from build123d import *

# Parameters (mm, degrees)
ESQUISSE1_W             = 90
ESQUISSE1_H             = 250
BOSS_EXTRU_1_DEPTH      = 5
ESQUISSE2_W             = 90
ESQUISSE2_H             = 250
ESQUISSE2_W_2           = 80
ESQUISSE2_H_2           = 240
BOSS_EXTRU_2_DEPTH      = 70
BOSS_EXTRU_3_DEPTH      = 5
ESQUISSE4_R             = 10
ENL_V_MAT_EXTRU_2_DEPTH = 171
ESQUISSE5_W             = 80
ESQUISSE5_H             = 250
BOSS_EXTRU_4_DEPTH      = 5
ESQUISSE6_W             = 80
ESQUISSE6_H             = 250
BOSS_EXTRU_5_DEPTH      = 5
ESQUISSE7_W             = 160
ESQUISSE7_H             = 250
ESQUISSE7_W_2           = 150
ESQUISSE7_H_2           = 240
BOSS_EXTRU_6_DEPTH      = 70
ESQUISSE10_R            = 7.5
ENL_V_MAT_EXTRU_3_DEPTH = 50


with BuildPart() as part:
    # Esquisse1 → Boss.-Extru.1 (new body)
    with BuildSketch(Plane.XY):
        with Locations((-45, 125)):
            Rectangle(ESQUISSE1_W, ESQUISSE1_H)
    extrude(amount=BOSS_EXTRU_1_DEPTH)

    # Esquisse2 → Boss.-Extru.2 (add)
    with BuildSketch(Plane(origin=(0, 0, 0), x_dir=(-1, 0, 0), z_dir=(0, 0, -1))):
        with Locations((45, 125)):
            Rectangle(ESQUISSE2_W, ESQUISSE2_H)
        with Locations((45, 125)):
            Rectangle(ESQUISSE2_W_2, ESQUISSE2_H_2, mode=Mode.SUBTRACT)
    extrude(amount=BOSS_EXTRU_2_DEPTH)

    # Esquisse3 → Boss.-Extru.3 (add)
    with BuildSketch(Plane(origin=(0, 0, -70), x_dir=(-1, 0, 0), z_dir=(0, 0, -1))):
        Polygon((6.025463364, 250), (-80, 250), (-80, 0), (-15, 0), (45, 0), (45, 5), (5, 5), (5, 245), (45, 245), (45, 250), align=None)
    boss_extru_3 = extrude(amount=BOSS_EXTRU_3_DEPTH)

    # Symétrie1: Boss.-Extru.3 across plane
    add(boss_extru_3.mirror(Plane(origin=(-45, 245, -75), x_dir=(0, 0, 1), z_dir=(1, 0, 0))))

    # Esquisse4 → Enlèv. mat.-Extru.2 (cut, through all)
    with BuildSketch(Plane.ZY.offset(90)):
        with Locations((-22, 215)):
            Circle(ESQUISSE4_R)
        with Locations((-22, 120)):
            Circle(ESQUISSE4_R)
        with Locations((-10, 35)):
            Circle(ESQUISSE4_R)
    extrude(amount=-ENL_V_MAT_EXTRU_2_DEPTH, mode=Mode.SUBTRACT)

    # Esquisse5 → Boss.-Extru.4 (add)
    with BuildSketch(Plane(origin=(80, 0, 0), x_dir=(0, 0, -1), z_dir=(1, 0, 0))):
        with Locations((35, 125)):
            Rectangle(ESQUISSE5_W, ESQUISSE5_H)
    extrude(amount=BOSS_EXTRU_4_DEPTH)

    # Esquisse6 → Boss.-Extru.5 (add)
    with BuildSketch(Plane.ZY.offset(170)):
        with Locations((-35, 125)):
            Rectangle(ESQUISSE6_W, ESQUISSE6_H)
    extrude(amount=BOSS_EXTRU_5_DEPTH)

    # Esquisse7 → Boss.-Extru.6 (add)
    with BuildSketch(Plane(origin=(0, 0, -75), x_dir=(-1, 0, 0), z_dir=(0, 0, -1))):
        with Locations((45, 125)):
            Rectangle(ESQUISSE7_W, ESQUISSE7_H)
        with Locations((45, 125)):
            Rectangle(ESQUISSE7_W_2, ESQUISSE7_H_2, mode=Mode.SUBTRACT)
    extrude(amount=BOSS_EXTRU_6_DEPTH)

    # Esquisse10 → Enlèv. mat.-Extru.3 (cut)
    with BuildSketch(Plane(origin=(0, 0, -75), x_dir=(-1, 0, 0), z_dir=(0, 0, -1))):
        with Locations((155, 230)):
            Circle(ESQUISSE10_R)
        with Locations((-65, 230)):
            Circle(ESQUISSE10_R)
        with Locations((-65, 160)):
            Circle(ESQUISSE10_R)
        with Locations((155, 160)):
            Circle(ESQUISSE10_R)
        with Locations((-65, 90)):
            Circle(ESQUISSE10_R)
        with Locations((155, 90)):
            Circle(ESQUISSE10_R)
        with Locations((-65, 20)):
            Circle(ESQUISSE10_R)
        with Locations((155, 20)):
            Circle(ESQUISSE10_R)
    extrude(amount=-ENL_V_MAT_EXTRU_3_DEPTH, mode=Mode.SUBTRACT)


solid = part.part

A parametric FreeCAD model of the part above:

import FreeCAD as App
import Part
import Sketcher
from FreeCAD import Vector
Q = App.Units.Quantity

doc = App.newDocument("Part")
params = doc.addObject("Spreadsheet::Sheet", "Params")
for row, (alias, value) in enumerate([
    ("sketch1_width", "90 mm"),
    ("sketch1_height", "250 mm"),
    ("pad1_length", "5 mm"),
    ("sketch2_width", "90 mm"),
    ("sketch2_width2", "80 mm"),
    ("sketch2_height", "250 mm"),
    ("sketch2_height2", "240 mm"),
    ("pad2_length", "70 mm"),
    ("sketch3_width", "125 mm"),
    ("sketch3_width2", "40 mm"),
    ("sketch3_height", "250 mm"),
    ("sketch3_height2", "5 mm"),
    ("pad3_length", "5 mm"),
    ("sketch4_diameter", "20 mm"),
    ("sketch5_width", "250 mm"),
    ("sketch5_height", "80 mm"),
    ("pad4_length", "5 mm"),
    ("sketch6_width", "250 mm"),
    ("sketch6_height", "80 mm"),
    ("pad5_length", "5 mm"),
    ("sketch7_width", "160 mm"),
    ("sketch7_width2", "150 mm"),
    ("sketch7_height", "250 mm"),
    ("sketch7_height2", "240 mm"),
    ("pad6_length", "70 mm"),
    ("sketch8_diameter", "15 mm"),
    ("pocket2_length", "50 mm"),
], start=1):
    params.set(f"A{row}", alias)
    params.set(f"B{row}", "=" + value)
    params.setAlias(f"B{row}", alias)

body = doc.addObject("PartDesign::Body", "Body")

sketch1 = body.newObject("Sketcher::SketchObject", "Sketch")
sketch1.AttachmentSupport = (doc.getObject("XY_Plane"), [""])
sketch1.MapMode = "FlatFace"
sketch1.addGeometry([
    Part.LineSegment(Vector(-90, 250, 0), Vector(-90, 0, 0)),
    Part.LineSegment(Vector(-90, 0, 0), Vector(0, 0, 0)),
    Part.LineSegment(Vector(0, 0, 0), Vector(0, 250, 0)),
    Part.LineSegment(Vector(0, 250, 0), Vector(-90, 250, 0)),
], False)
sketch1.addConstraint([
    Sketcher.Constraint("Coincident", 0, 2, 1, 1),
    Sketcher.Constraint("Coincident", 1, 2, 2, 1),
    Sketcher.Constraint("Coincident", 2, 2, 3, 1),
    Sketcher.Constraint("Coincident", 3, 2, 0, 1),
    Sketcher.Constraint("Vertical", 0),
    Sketcher.Constraint("Horizontal", 1),
    Sketcher.Constraint("Vertical", 2),
    Sketcher.Constraint("Horizontal", 3),
    Sketcher.Constraint("Coincident", 1, 2, -1, 1),
    Sketcher.Constraint("DistanceX", 1, 1, 1, 2, Q("90 mm")),
    Sketcher.Constraint("DistanceY", 0, 2, 0, 1, Q("250 mm")),
])
sketch1.setExpression("Constraints[9]", "Params.sketch1_width")
sketch1.setExpression("Constraints[10]", "Params.sketch1_height")
pad1 = body.newObject("PartDesign::Pad", "Pad")
pad1.Profile = sketch1
pad1.setExpression("Length", "Params.pad1_length")

sketch2 = body.newObject("Sketcher::SketchObject", "Sketch001")
sketch2.AttachmentSupport = (doc.getObject("XY_Plane"), [""])
sketch2.MapMode = "FlatFace"
sketch2.addGeometry([
    Part.LineSegment(Vector(0, 250, 0), Vector(0, 0, 0)),
    Part.LineSegment(Vector(0, 0, 0), Vector(-90, 0, 0)),
    Part.LineSegment(Vector(-90, 0, 0), Vector(-90, 250, 0)),
    Part.LineSegment(Vector(-90, 250, 0), Vector(0, 250, 0)),
    Part.LineSegment(Vector(-85, 5, 0), Vector(-5, 5, 0)),
    Part.LineSegment(Vector(-5, 5, 0), Vector(-5, 245, 0)),
    Part.LineSegment(Vector(-5, 245, 0), Vector(-85, 245, 0)),
    Part.LineSegment(Vector(-85, 245, 0), Vector(-85, 5, 0)),
], False)
sketch2.addConstraint([
    Sketcher.Constraint("Coincident", 0, 2, 1, 1),
    Sketcher.Constraint("Coincident", 1, 2, 2, 1),
    Sketcher.Constraint("Coincident", 2, 2, 3, 1),
    Sketcher.Constraint("Coincident", 3, 2, 0, 1),
    Sketcher.Constraint("Coincident", 4, 2, 5, 1),
    Sketcher.Constraint("Coincident", 5, 2, 6, 1),
    Sketcher.Constraint("Coincident", 6, 2, 7, 1),
    Sketcher.Constraint("Coincident", 7, 2, 4, 1),
    Sketcher.Constraint("Vertical", 0),
    Sketcher.Constraint("Horizontal", 1),
    Sketcher.Constraint("Vertical", 2),
    Sketcher.Constraint("Horizontal", 3),
    Sketcher.Constraint("Horizontal", 4),
    Sketcher.Constraint("Vertical", 5),
    Sketcher.Constraint("Horizontal", 6),
    Sketcher.Constraint("Vertical", 7),
    Sketcher.Constraint("Coincident", 0, 2, -1, 1),
    Sketcher.Constraint("DistanceX", 1, 2, 1, 1, Q("90 mm")),
    Sketcher.Constraint("DistanceX", 4, 1, 4, 2, Q("80 mm")),
    Sketcher.Constraint("DistanceY", 0, 2, 0, 1, Q("250 mm")),
    Sketcher.Constraint("DistanceY", 5, 1, 5, 2, Q("240 mm")),
    Sketcher.Constraint("DistanceX", 4, 2, -1, 1, Q("5 mm")),
    Sketcher.Constraint("DistanceY", -1, 1, 4, 2, Q("5 mm")),
])
sketch2.setExpression("Constraints[17]", "Params.sketch2_width")
sketch2.setExpression("Constraints[18]", "Params.sketch2_width2")
sketch2.setExpression("Constraints[19]", "Params.sketch2_height")
sketch2.setExpression("Constraints[20]", "Params.sketch2_height2")
pad2 = body.newObject("PartDesign::Pad", "Pad001")
pad2.Profile = sketch2
pad2.setExpression("Length", "Params.pad2_length")
pad2.Reversed = True

sketch3 = body.newObject("Sketcher::SketchObject", "Sketch002")
sketch3.AttachmentSupport = (doc.getObject("XY_Plane"), [""])
sketch3.MapMode = "FlatFace"
sketch3.AttachmentOffset = App.Placement(Vector(0, 0, -70), App.Rotation())
sketch3.addGeometry([
    Part.LineSegment(Vector(80, 250, 0), Vector(80, 0, 0)),
    Part.LineSegment(Vector(80, 0, 0), Vector(-45, 0, 0)),
    Part.LineSegment(Vector(-45, 0, 0), Vector(-45, 5, 0)),
    Part.LineSegment(Vector(-45, 5, 0), Vector(-5, 5, 0)),
    Part.LineSegment(Vector(-5, 5, 0), Vector(-5, 245, 0)),
    Part.LineSegment(Vector(-5, 245, 0), Vector(-45, 245, 0)),
    Part.LineSegment(Vector(-45, 245, 0), Vector(-45, 250, 0)),
    Part.LineSegment(Vector(-45, 250, 0), Vector(80, 250, 0)),
], False)
sketch3.addConstraint([
    Sketcher.Constraint("Coincident", 0, 2, 1, 1),
    Sketcher.Constraint("Coincident", 1, 2, 2, 1),
    Sketcher.Constraint("Coincident", 2, 2, 3, 1),
    Sketcher.Constraint("Coincident", 3, 2, 4, 1),
    Sketcher.Constraint("Coincident", 4, 2, 5, 1),
    Sketcher.Constraint("Coincident", 5, 2, 6, 1),
    Sketcher.Constraint("Coincident", 6, 2, 7, 1),
    Sketcher.Constraint("Coincident", 7, 2, 0, 1),
    Sketcher.Constraint("Vertical", 0),
    Sketcher.Constraint("Horizontal", 1),
    Sketcher.Constraint("Vertical", 2),
    Sketcher.Constraint("Horizontal", 3),
    Sketcher.Constraint("Vertical", 4),
    Sketcher.Constraint("Horizontal", 5),
    Sketcher.Constraint("Vertical", 6),
    Sketcher.Constraint("Horizontal", 7),
    Sketcher.Constraint("PointOnObject", 0, 2, -1),
    Sketcher.Constraint("Vertical", 2, 2, 5, 2),
    Sketcher.Constraint("Equal", 2, 6),
    Sketcher.Constraint("DistanceX", 1, 2, 1, 1, Q("125 mm")),
    Sketcher.Constraint("DistanceX", 3, 1, 3, 2, Q("40 mm")),
    Sketcher.Constraint("DistanceY", 0, 2, 0, 1, Q("250 mm")),
    Sketcher.Constraint("DistanceY", 2, 1, 2, 2, Q("5 mm")),
    Sketcher.Constraint("DistanceX", -1, 1, 0, 2, Q("80 mm")),
])
sketch3.setExpression("Constraints[19]", "Params.sketch3_width")
sketch3.setExpression("Constraints[20]", "Params.sketch3_width2")
sketch3.setExpression("Constraints[21]", "Params.sketch3_height")
sketch3.setExpression("Constraints[22]", "Params.sketch3_height2")
pad3 = body.newObject("PartDesign::Pad", "Pad002")
pad3.Profile = sketch3
pad3.setExpression("Length", "Params.pad3_length")
pad3.Reversed = True
doc.recompute()

datumplane = body.newObject("PartDesign::Plane", "DatumPlane")
datumplane.AttachmentSupport = (doc.getObject("YZ_Plane"), [""])
datumplane.MapMode = "FlatFace"
datumplane.AttachmentOffset = App.Placement(Vector(0, 0, -45), App.Rotation())
mirrored = body.newObject("PartDesign::Mirrored", "Mirrored")
mirrored.Originals = [pad3]
mirrored.MirrorPlane = (datumplane, [""])
body.Tip = mirrored

sketch4 = body.newObject("Sketcher::SketchObject", "Sketch003")
sketch4.AttachmentSupport = (doc.getObject("YZ_Plane"), [""])
sketch4.MapMode = "FlatFace"
sketch4.AttachmentOffset = App.Placement(Vector(0, 0, -90), App.Rotation())
sketch4.addGeometry([
    Part.Circle(Vector(215, -22, 0), Vector(0, 0, 1), 10),
    Part.Circle(Vector(120, -22, 0), Vector(0, 0, 1), 10),
    Part.Circle(Vector(35, -10, 0), Vector(0, 0, 1), 10),
], False)
sketch4.addConstraint([
    Sketcher.Constraint("Equal", 0, 1),
    Sketcher.Constraint("Equal", 1, 2),
    Sketcher.Constraint("Horizontal", 0, 3, 1, 3),
    Sketcher.Constraint("Diameter", 0, Q("20 mm")),
    Sketcher.Constraint("DistanceX", -1, 1, 0, 3, Q("215 mm")),
    Sketcher.Constraint("DistanceY", 0, 3, -1, 1, Q("22 mm")),
    Sketcher.Constraint("DistanceX", -1, 1, 1, 3, Q("120 mm")),
    Sketcher.Constraint("DistanceX", -1, 1, 2, 3, Q("35 mm")),
    Sketcher.Constraint("DistanceY", 2, 3, -1, 1, Q("10 mm")),
])
sketch4.setExpression("Constraints[3]", "Params.sketch4_diameter")
pocket1 = body.newObject("PartDesign::Pocket", "Pocket")
pocket1.Profile = sketch4
pocket1.Type = "ThroughAll"
pocket1.Reversed = True

sketch5 = body.newObject("Sketcher::SketchObject", "Sketch004")
sketch5.AttachmentSupport = (doc.getObject("YZ_Plane"), [""])
sketch5.MapMode = "FlatFace"
sketch5.AttachmentOffset = App.Placement(Vector(0, 0, 80), App.Rotation())
sketch5.addGeometry([
    Part.LineSegment(Vector(250, 5, 0), Vector(0, 5, 0)),
    Part.LineSegment(Vector(0, 5, 0), Vector(0, -75, 0)),
    Part.LineSegment(Vector(0, -75, 0), Vector(250, -75, 0)),
    Part.LineSegment(Vector(250, -75, 0), Vector(250, 5, 0)),
], False)
sketch5.addConstraint([
    Sketcher.Constraint("Coincident", 0, 2, 1, 1),
    Sketcher.Constraint("Coincident", 1, 2, 2, 1),
    Sketcher.Constraint("Coincident", 2, 2, 3, 1),
    Sketcher.Constraint("Coincident", 3, 2, 0, 1),
    Sketcher.Constraint("Horizontal", 0),
    Sketcher.Constraint("Vertical", 1),
    Sketcher.Constraint("Horizontal", 2),
    Sketcher.Constraint("Vertical", 3),
    Sketcher.Constraint("PointOnObject", 0, 2, -2),
    Sketcher.Constraint("DistanceX", 0, 2, 0, 1, Q("250 mm")),
    Sketcher.Constraint("DistanceY", 1, 2, 1, 1, Q("80 mm")),
    Sketcher.Constraint("DistanceY", -1, 1, 0, 2, Q("5 mm")),
])
sketch5.setExpression("Constraints[9]", "Params.sketch5_width")
sketch5.setExpression("Constraints[10]", "Params.sketch5_height")
pad4 = body.newObject("PartDesign::Pad", "Pad003")
pad4.Profile = sketch5
pad4.setExpression("Length", "Params.pad4_length")

sketch6 = body.newObject("Sketcher::SketchObject", "Sketch005")
sketch6.AttachmentSupport = (doc.getObject("YZ_Plane"), [""])
sketch6.MapMode = "FlatFace"
sketch6.AttachmentOffset = App.Placement(Vector(0, 0, -170), App.Rotation())
sketch6.addGeometry([
    Part.LineSegment(Vector(250, -75, 0), Vector(0, -75, 0)),
    Part.LineSegment(Vector(0, -75, 0), Vector(0, 5, 0)),
    Part.LineSegment(Vector(0, 5, 0), Vector(250, 5, 0)),
    Part.LineSegment(Vector(250, 5, 0), Vector(250, -75, 0)),
], False)
sketch6.addConstraint([
    Sketcher.Constraint("Coincident", 0, 2, 1, 1),
    Sketcher.Constraint("Coincident", 1, 2, 2, 1),
    Sketcher.Constraint("Coincident", 2, 2, 3, 1),
    Sketcher.Constraint("Coincident", 3, 2, 0, 1),
    Sketcher.Constraint("Horizontal", 0),
    Sketcher.Constraint("Vertical", 1),
    Sketcher.Constraint("Horizontal", 2),
    Sketcher.Constraint("Vertical", 3),
    Sketcher.Constraint("PointOnObject", 0, 2, -2),
    Sketcher.Constraint("DistanceX", 0, 2, 0, 1, Q("250 mm")),
    Sketcher.Constraint("DistanceY", 1, 1, 1, 2, Q("80 mm")),
    Sketcher.Constraint("DistanceY", 0, 2, -1, 1, Q("75 mm")),
])
sketch6.setExpression("Constraints[9]", "Params.sketch6_width")
sketch6.setExpression("Constraints[10]", "Params.sketch6_height")
pad5 = body.newObject("PartDesign::Pad", "Pad004")
pad5.Profile = sketch6
pad5.setExpression("Length", "Params.pad5_length")
pad5.Reversed = True

sketch7 = body.newObject("Sketcher::SketchObject", "Sketch006")
sketch7.AttachmentSupport = (doc.getObject("XY_Plane"), [""])
sketch7.MapMode = "FlatFace"
sketch7.AttachmentOffset = App.Placement(Vector(0, 0, -75), App.Rotation())
sketch7.addGeometry([
    Part.LineSegment(Vector(35, 250, 0), Vector(35, 0, 0)),
    Part.LineSegment(Vector(35, 0, 0), Vector(-125, 0, 0)),
    Part.LineSegment(Vector(-125, 0, 0), Vector(-125, 250, 0)),
    Part.LineSegment(Vector(-125, 250, 0), Vector(35, 250, 0)),
    Part.LineSegment(Vector(-120, 5, 0), Vector(30, 5, 0)),
    Part.LineSegment(Vector(30, 5, 0), Vector(30, 245, 0)),
    Part.LineSegment(Vector(30, 245, 0), Vector(-120, 245, 0)),
    Part.LineSegment(Vector(-120, 245, 0), Vector(-120, 5, 0)),
], False)
sketch7.addConstraint([
    Sketcher.Constraint("Coincident", 0, 2, 1, 1),
    Sketcher.Constraint("Coincident", 1, 2, 2, 1),
    Sketcher.Constraint("Coincident", 2, 2, 3, 1),
    Sketcher.Constraint("Coincident", 3, 2, 0, 1),
    Sketcher.Constraint("Coincident", 4, 2, 5, 1),
    Sketcher.Constraint("Coincident", 5, 2, 6, 1),
    Sketcher.Constraint("Coincident", 6, 2, 7, 1),
    Sketcher.Constraint("Coincident", 7, 2, 4, 1),
    Sketcher.Constraint("Vertical", 0),
    Sketcher.Constraint("Horizontal", 1),
    Sketcher.Constraint("Vertical", 2),
    Sketcher.Constraint("Horizontal", 3),
    Sketcher.Constraint("Horizontal", 4),
    Sketcher.Constraint("Vertical", 5),
    Sketcher.Constraint("Horizontal", 6),
    Sketcher.Constraint("Vertical", 7),
    Sketcher.Constraint("PointOnObject", 0, 2, -1),
    Sketcher.Constraint("DistanceX", 1, 2, 1, 1, Q("160 mm")),
    Sketcher.Constraint("DistanceX", 4, 1, 4, 2, Q("150 mm")),
    Sketcher.Constraint("DistanceY", 0, 2, 0, 1, Q("250 mm")),
    Sketcher.Constraint("DistanceY", 5, 1, 5, 2, Q("240 mm")),
    Sketcher.Constraint("DistanceX", -1, 1, 0, 2, Q("35 mm")),
    Sketcher.Constraint("DistanceX", -1, 1, 4, 2, Q("30 mm")),
    Sketcher.Constraint("DistanceY", -1, 1, 4, 2, Q("5 mm")),
])
sketch7.setExpression("Constraints[17]", "Params.sketch7_width")
sketch7.setExpression("Constraints[18]", "Params.sketch7_width2")
sketch7.setExpression("Constraints[19]", "Params.sketch7_height")
sketch7.setExpression("Constraints[20]", "Params.sketch7_height2")
pad6 = body.newObject("PartDesign::Pad", "Pad005")
pad6.Profile = sketch7
pad6.setExpression("Length", "Params.pad6_length")
pad6.Reversed = True

sketch8 = body.newObject("Sketcher::SketchObject", "Sketch007")
sketch8.AttachmentSupport = (doc.getObject("XY_Plane"), [""])
sketch8.MapMode = "FlatFace"
sketch8.AttachmentOffset = App.Placement(Vector(0, 0, -75), App.Rotation())
sketch8.addGeometry([
    Part.Circle(Vector(-155, 230, 0), Vector(0, 0, 1), 8),
    Part.Circle(Vector(65, 230, 0), Vector(0, 0, 1), 8),
    Part.Circle(Vector(65, 160, 0), Vector(0, 0, 1), 8),
    Part.Circle(Vector(-155, 160, 0), Vector(0, 0, 1), 8),
    Part.Circle(Vector(65, 90, 0), Vector(0, 0, 1), 8),
    Part.Circle(Vector(-155, 90, 0), Vector(0, 0, 1), 8),
    Part.Circle(Vector(65, 20, 0), Vector(0, 0, 1), 8),
    Part.Circle(Vector(-155, 20, 0), Vector(0, 0, 1), 8),
], False)
sketch8.addConstraint([
    Sketcher.Constraint("Equal", 0, 1),
    Sketcher.Constraint("Equal", 1, 2),
    Sketcher.Constraint("Equal", 2, 3),
    Sketcher.Constraint("Equal", 3, 4),
    Sketcher.Constraint("Equal", 4, 5),
    Sketcher.Constraint("Equal", 5, 6),
    Sketcher.Constraint("Equal", 6, 7),
    Sketcher.Constraint("Horizontal", 0, 3, 1, 3),
    Sketcher.Constraint("Horizontal", 2, 3, 3, 3),
    Sketcher.Constraint("Horizontal", 4, 3, 5, 3),
    Sketcher.Constraint("Horizontal", 6, 3, 7, 3),
    Sketcher.Constraint("Vertical", 1, 3, 2, 3),
    Sketcher.Constraint("Vertical", 0, 3, 3, 3),
    Sketcher.Constraint("Vertical", 2, 3, 4, 3),
    Sketcher.Constraint("Vertical", 3, 3, 5, 3),
    Sketcher.Constraint("Vertical", 4, 3, 6, 3),
    Sketcher.Constraint("Vertical", 5, 3, 7, 3),
    Sketcher.Constraint("Diameter", 0, Q("15 mm")),
    Sketcher.Constraint("DistanceX", 0, 3, -1, 1, Q("155 mm")),
    Sketcher.Constraint("DistanceY", -1, 1, 0, 3, Q("230 mm")),
    Sketcher.Constraint("DistanceX", -1, 1, 1, 3, Q("65 mm")),
    Sketcher.Constraint("DistanceY", -1, 1, 2, 3, Q("160 mm")),
    Sketcher.Constraint("DistanceY", -1, 1, 4, 3, Q("90 mm")),
    Sketcher.Constraint("DistanceY", -1, 1, 6, 3, Q("20 mm")),
])
sketch8.setExpression("Constraints[17]", "Params.sketch8_diameter")
pocket2 = body.newObject("PartDesign::Pocket", "Pocket001")
pocket2.Profile = sketch8
pocket2.setExpression("Length", "Params.pocket2_length")
pocket2.Reversed = True

doc.recompute()
